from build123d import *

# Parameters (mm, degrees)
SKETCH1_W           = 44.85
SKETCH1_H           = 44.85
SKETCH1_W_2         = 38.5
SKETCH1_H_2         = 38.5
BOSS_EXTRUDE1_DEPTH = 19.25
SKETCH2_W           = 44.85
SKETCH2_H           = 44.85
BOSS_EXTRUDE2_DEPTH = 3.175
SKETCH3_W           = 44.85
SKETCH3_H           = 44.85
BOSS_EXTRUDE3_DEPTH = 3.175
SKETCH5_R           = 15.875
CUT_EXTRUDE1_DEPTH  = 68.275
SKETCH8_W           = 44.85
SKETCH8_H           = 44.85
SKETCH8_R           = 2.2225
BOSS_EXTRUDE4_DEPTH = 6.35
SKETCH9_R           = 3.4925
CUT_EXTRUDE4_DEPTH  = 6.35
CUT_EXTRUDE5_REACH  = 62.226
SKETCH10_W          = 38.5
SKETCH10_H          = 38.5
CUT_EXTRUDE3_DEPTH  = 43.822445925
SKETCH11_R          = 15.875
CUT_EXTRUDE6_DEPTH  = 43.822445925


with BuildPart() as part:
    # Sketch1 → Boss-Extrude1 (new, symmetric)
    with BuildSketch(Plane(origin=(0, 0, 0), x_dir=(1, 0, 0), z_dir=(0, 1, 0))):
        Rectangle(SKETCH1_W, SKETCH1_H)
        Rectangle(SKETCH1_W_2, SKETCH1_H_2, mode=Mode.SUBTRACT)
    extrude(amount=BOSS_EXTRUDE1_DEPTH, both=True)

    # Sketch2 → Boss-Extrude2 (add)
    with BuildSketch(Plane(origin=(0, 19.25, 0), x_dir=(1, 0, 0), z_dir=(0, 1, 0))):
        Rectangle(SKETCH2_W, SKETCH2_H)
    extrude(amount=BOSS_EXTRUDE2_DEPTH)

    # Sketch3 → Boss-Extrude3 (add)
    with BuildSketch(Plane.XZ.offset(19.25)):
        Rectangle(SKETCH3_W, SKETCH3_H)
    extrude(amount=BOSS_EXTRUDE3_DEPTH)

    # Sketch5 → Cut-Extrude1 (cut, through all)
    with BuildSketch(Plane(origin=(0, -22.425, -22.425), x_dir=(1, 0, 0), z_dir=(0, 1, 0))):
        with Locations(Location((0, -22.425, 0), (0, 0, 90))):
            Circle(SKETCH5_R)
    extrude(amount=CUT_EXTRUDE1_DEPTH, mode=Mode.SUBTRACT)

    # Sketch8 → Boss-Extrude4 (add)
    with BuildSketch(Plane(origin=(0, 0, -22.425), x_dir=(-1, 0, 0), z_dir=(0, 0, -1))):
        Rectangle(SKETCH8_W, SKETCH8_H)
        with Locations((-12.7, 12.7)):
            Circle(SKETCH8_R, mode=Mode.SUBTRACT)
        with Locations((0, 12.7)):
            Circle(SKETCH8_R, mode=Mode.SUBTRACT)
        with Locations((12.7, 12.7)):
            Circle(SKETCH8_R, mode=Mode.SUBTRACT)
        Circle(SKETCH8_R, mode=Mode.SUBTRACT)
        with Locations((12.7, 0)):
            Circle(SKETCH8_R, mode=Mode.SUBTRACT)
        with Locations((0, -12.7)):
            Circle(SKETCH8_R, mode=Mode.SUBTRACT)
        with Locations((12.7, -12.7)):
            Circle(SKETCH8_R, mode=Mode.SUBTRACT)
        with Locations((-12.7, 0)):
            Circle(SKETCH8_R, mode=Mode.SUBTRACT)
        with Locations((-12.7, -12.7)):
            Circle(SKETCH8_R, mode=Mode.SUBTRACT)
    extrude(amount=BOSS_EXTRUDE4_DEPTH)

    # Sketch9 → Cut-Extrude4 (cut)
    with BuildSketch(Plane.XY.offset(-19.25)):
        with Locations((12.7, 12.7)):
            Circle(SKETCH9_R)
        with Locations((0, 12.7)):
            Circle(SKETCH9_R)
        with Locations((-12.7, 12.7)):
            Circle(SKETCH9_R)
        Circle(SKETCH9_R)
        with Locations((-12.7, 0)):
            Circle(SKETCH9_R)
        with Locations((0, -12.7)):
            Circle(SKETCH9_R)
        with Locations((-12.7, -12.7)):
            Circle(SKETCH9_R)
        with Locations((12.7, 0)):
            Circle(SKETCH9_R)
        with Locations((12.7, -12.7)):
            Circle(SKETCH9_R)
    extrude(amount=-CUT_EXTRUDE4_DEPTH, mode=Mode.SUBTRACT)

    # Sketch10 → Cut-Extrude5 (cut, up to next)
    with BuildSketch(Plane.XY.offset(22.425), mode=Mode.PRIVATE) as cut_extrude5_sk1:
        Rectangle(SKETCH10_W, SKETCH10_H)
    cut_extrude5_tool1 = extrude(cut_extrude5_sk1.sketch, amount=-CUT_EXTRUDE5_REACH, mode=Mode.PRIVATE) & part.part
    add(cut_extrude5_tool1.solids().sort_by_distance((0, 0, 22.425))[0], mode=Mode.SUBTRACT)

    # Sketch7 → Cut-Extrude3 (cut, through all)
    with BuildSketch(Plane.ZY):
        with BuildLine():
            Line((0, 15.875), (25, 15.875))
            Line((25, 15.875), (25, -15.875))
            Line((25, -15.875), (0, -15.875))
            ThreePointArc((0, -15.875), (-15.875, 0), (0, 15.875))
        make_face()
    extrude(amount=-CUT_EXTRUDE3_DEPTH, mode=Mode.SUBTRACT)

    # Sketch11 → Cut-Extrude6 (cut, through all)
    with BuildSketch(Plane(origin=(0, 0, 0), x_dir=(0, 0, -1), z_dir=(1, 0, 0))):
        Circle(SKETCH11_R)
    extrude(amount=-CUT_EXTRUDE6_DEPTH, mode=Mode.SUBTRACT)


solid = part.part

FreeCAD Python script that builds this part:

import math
import FreeCAD as App
import Part
import Sketcher
from FreeCAD import Vector
Q = App.Units.Quantity

doc = App.newDocument("Part")
body = doc.addObject("PartDesign::Body", "Body")

sketch1 = body.newObject("Sketcher::SketchObject", "Sketch")
sketch1.AttachmentSupport = (doc.getObject("XZ_Plane"), [""])
sketch1.MapMode = "FlatFace"
sketch1.addGeometry([
    Part.LineSegment(Vector(-22.425, -22.425, 0), Vector(-22.425, 22.425, 0)),
    Part.LineSegment(Vector(-22.425, 22.425, 0), Vector(22.425, 22.425, 0)),
    Part.LineSegment(Vector(22.425, 22.425, 0), Vector(22.425, -22.425, 0)),
    Part.LineSegment(Vector(22.425, -22.425, 0), Vector(-22.425, -22.425, 0)),
    Part.LineSegment(Vector(19.25, 19.25, 0), Vector(-19.25, 19.25, 0)),
    Part.LineSegment(Vector(-19.25, 19.25, 0), Vector(-19.25, -19.25, 0)),
    Part.LineSegment(Vector(-19.25, -19.25, 0), Vector(19.25, -19.25, 0)),
    Part.LineSegment(Vector(19.25, -19.25, 0), Vector(19.25, 19.25, 0)),
], False)
sketch1.addConstraint([
    Sketcher.Constraint("Coincident", 0, 2, 1, 1),
    Sketcher.Constraint("Coincident", 1, 2, 2, 1),
    Sketcher.Constraint("Coincident", 2, 2, 3, 1),
    Sketcher.Constraint("Coincident", 3, 2, 0, 1),
    Sketcher.Constraint("Coincident", 4, 2, 5, 1),
    Sketcher.Constraint("Coincident", 5, 2, 6, 1),
    Sketcher.Constraint("Coincident", 6, 2, 7, 1),
    Sketcher.Constraint("Coincident", 7, 2, 4, 1),
    Sketcher.Constraint("Vertical", 0),
    Sketcher.Constraint("Horizontal", 1),
    Sketcher.Constraint("Vertical", 2),
    Sketcher.Constraint("Horizontal", 3),
    Sketcher.Constraint("Horizontal", 4),
    Sketcher.Constraint("Vertical", 5),
    Sketcher.Constraint("Horizontal", 6),
    Sketcher.Constraint("Vertical", 7),
    Sketcher.Constraint("Symmetric", 0, 2, 2, 2, -1, 1),
    Sketcher.Constraint("Symmetric", 4, 2, 6, 2, -1, 1),
    Sketcher.Constraint("Equal", 3, 0),
    Sketcher.Constraint("Equal", 6, 5),
    Sketcher.Constraint("DistanceX", 0, 2, 4, 2, Q("0.125 in")),
    Sketcher.Constraint("DistanceX", 1, 1, 1, 2, Q("44.85 mm")),
])
pad1 = body.newObject("PartDesign::Pad", "Pad")
pad1.Profile = sketch1
pad1.Length = 38.5
pad1.Midplane = True

sketch2 = body.newObject("Sketcher::SketchObject", "Sketch001")
sketch2.AttachmentSupport = (doc.getObject("XZ_Plane"), [""])
sketch2.MapMode = "FlatFace"
sketch2.AttachmentOffset = App.Placement(Vector(0, 0, -19.25), App.Rotation())
sketch2.addGeometry([
    Part.LineSegment(Vector(-22.425, -22.425, 0), Vector(-22.425, 22.425, 0)),
    Part.LineSegment(Vector(-22.425, 22.425, 0), Vector(22.425, 22.425, 0)),
    Part.LineSegment(Vector(22.425, 22.425, 0), Vector(22.425, -22.425, 0)),
    Part.LineSegment(Vector(22.425, -22.425, 0), Vector(-22.425, -22.425, 0)),
], False)
sketch2.addConstraint([
    Sketcher.Constraint("Coincident", 0, 2, 1, 1),
    Sketcher.Constraint("Coincident", 1, 2, 2, 1),
    Sketcher.Constraint("Coincident", 2, 2, 3, 1),
    Sketcher.Constraint("Coincident", 3, 2, 0, 1),
    Sketcher.Constraint("Vertical", 0),
    Sketcher.Constraint("Horizontal", 1),
    Sketcher.Constraint("Vertical", 2),
    Sketcher.Constraint("Horizontal", 3),
    Sketcher.Constraint("Symmetric", 0, 2, 2, 2, -1, 1),
    Sketcher.Constraint("Equal", 3, 0),
    Sketcher.Constraint("DistanceX", 1, 1, 1, 2, Q("44.85 mm")),
])
pad2 = body.newObject("PartDesign::Pad", "Pad001")
pad2.Profile = sketch2
pad2.Length = Q("0.125 in")
pad2.Reversed = True

sketch3 = body.newObject("Sketcher::SketchObject", "Sketch002")
sketch3.AttachmentSupport = (doc.getObject("XZ_Plane"), [""])
sketch3.MapMode = "FlatFace"
sketch3.AttachmentOffset = App.Placement(Vector(0, 0, 19.25), App.Rotation())
sketch3.addGeometry([
    Part.LineSegment(Vector(-22.425, 22.425, 0), Vector(-22.425, -22.425, 0)),
    Part.LineSegment(Vector(-22.425, -22.425, 0), Vector(22.425, -22.425, 0)),
    Part.LineSegment(Vector(22.425, -22.425, 0), Vector(22.425, 22.425, 0)),
    Part.LineSegment(Vector(22.425, 22.425, 0), Vector(-22.425, 22.425, 0)),
], False)
sketch3.addConstraint([
    Sketcher.Constraint("Coincident", 0, 2, 1, 1),
    Sketcher.Constraint("Coincident", 1, 2, 2, 1),
    Sketcher.Constraint("Coincident", 2, 2, 3, 1),
    Sketcher.Constraint("Coincident", 3, 2, 0, 1),
    Sketcher.Constraint("Vertical", 0),
    Sketcher.Constraint("Horizontal", 1),
    Sketcher.Constraint("Vertical", 2),
    Sketcher.Constraint("Horizontal", 3),
    Sketcher.Constraint("Symmetric", 0, 2, 2, 2, -1, 1),
    Sketcher.Constraint("Equal", 3, 0),
    Sketcher.Constraint("DistanceX", 1, 1, 1, 2, Q("44.85 mm")),
])
pad3 = body.newObject("PartDesign::Pad", "Pad002")
pad3.Profile = sketch3
pad3.Length = Q("0.125 in")

sketch4 = body.newObject("Sketcher::SketchObject", "Sketch003")
sketch4.AttachmentSupport = (doc.getObject("XZ_Plane"), [""])
sketch4.MapMode = "FlatFace"
sketch4.AttachmentOffset = App.Placement(Vector(0, 0, 22.425), App.Rotation())
sketch4.addGeometry(Part.Circle(Vector(0, 0, 0), Vector(0, 0, 1), 15.875), False)
sketch4.addConstraint([
    Sketcher.Constraint("Coincident", 0, 3, -1, 1),
    Sketcher.Constraint("Diameter", 0, Q("1.25 in")),
])
pocket1 = body.newObject("PartDesign::Pocket", "Pocket")
pocket1.Profile = sketch4
pocket1.Type = "ThroughAll"

sketch5 = body.newObject("Sketcher::SketchObject", "Sketch004")
sketch5.AttachmentSupport = (doc.getObject("XY_Plane"), [""])
sketch5.MapMode = "FlatFace"
sketch5.AttachmentOffset = App.Placement(Vector(0, 0, -22.425), App.Rotation())
sketch5.addGeometry([
    Part.LineSegment(Vector(22.425, 22.425, 0), Vector(22.425, -22.425, 0)),
    Part.LineSegment(Vector(22.425, -22.425, 0), Vector(-22.425, -22.425, 0)),
    Part.LineSegment(Vector(-22.425, -22.425, 0), Vector(-22.425, 22.425, 0)),
    Part.LineSegment(Vector(-22.425, 22.425, 0), Vector(22.425, 22.425, 0)),
    Part.Circle(Vector(12.7, -12.7, 0), Vector(0, 0, 1), 2.2225),
    Part.Circle(Vector(0, -12.7, 0), Vector(0, 0, 1), 2.2225),
    Part.Circle(Vector(-12.7, -12.7, 0), Vector(0, 0, 1), 2.2225),
    Part.Circle(Vector(12.7, 0, 0), Vector(0, 0, 1), 2.2225),
    Part.Circle(Vector(12.7, 12.7, 0), Vector(0, 0, 1), 2.2225),
    Part.Circle(Vector(0, 0, 0), Vector(0, 0, 1), 2.2225),
    Part.Circle(Vector(-12.7, 0, 0), Vector(0, 0, 1), 2.2225),
    Part.Circle(Vector(0, 12.7, 0), Vector(0, 0, 1), 2.2225),
    Part.Circle(Vector(-12.7, 12.7, 0), Vector(0, 0, 1), 2.2225),
], False)
sketch5.addConstraint([
    Sketcher.Constraint("Coincident", 0, 2, 1, 1),
    Sketcher.Constraint("Coincident", 1, 2, 2, 1),
    Sketcher.Constraint("Coincident", 2, 2, 3, 1),
    Sketcher.Constraint("Coincident", 3, 2, 0, 1),
    Sketcher.Constraint("Vertical", 0),
    Sketcher.Constraint("Horizontal", 1),
    Sketcher.Constraint("Vertical", 2),
    Sketcher.Constraint("Horizontal", 3),
    Sketcher.Constraint("Coincident", 9, 3, -1, 1),
    Sketcher.Constraint("Equal", 4, 5),
    Sketcher.Constraint("Equal", 5, 6),
    Sketcher.Constraint("Equal", 6, 7),
    Sketcher.Constraint("Equal", 7, 8),
    Sketcher.Constraint("Equal", 8, 9),
    Sketcher.Constraint("Equal", 9, 10),
    Sketcher.Constraint("Equal", 10, 11),
    Sketcher.Constraint("Equal", 11, 12),
    Sketcher.Constraint("Symmetric", 6, 3, 8, 3, -1, 1),
    Sketcher.Constraint("Symmetric", 7, 3, 10, 3, -1, 1),
    Sketcher.Constraint("Symmetric", 5, 3, 11, 3, -1, 1),
    Sketcher.Constraint("Symmetric", 4, 3, 12, 3, -1, 1),
    Sketcher.Constraint("Symmetric", 0, 2, 2, 2, -1, 1),
    Sketcher.Constraint("Symmetric", 4, 3, 6, 3, -2),
    Sketcher.Constraint("PointOnObject", 5, 3, -2),
    Sketcher.Constraint("PointOnObject", 7, 3, -1),
    Sketcher.Constraint("Horizontal", 4, 3, 5, 3),
    Sketcher.Constraint("Vertical", 4, 3, 7, 3),
    Sketcher.Constraint("Equal", 3, 0),
    Sketcher.Constraint("Diameter", 4, Q("0.175 in")),
    Sketcher.Constraint("DistanceX", 6, 3, 4, 3, Q("1 in")),
    Sketcher.Constraint("DistanceY", 4, 3, 8, 3, Q("1 in")),
    Sketcher.Constraint("DistanceX", 1, 2, 1, 1, Q("44.85 mm")),
])
pad4 = body.newObject("PartDesign::Pad", "Pad003")
pad4.Profile = sketch5
pad4.Length = Q("0.25 in")
pad4.Reversed = True

sketch6 = body.newObject("Sketcher::SketchObject", "Sketch005")
sketch6.AttachmentSupport = (doc.getObject("XY_Plane"), [""])
sketch6.MapMode = "FlatFace"
sketch6.AttachmentOffset = App.Placement(Vector(0, 0, -19.25), App.Rotation())
sketch6.addGeometry([
    Part.Circle(Vector(12.7, 12.7, 0), Vector(0, 0, 1), 3.4925),
    Part.Circle(Vector(0, 12.7, 0), Vector(0, 0, 1), 3.4925),
    Part.Circle(Vector(-12.7, 12.7, 0), Vector(0, 0, 1), 3.4925),
    Part.Circle(Vector(0, 0, 0), Vector(0, 0, 1), 3.4925),
    Part.Circle(Vector(-12.7, 0, 0), Vector(0, 0, 1), 3.4925),
    Part.Circle(Vector(0, -12.7, 0), Vector(0, 0, 1), 3.4925),
    Part.Circle(Vector(-12.7, -12.7, 0), Vector(0, 0, 1), 3.4925),
    Part.Circle(Vector(12.7, 0, 0), Vector(0, 0, 1), 3.4925),
    Part.Circle(Vector(12.7, -12.7, 0), Vector(0, 0, 1), 3.4925),
], False)
sketch6.addConstraint([
    Sketcher.Constraint("Coincident", 3, 3, -1, 1),
    Sketcher.Constraint("Equal", 0, 1),
    Sketcher.Constraint("Equal", 1, 2),
    Sketcher.Constraint("Equal", 2, 3),
    Sketcher.Constraint("Equal", 3, 4),
    Sketcher.Constraint("Equal", 4, 5),
    Sketcher.Constraint("Equal", 5, 6),
    Sketcher.Constraint("Equal", 6, 7),
    Sketcher.Constraint("Equal", 7, 8),
    Sketcher.Constraint("Symmetric", 1, 3, 5, 3, -1, 1),
    Sketcher.Constraint("Symmetric", 0, 3, 6, 3, -1, 1),
    Sketcher.Constraint("Symmetric", 4, 3, 7, 3, -1, 1),
    Sketcher.Constraint("Symmetric", 2, 3, 8, 3, -1, 1),
    Sketcher.Constraint("Symmetric", 0, 3, 2, 3, -2),
    Sketcher.Constraint("PointOnObject", 1, 3, -2),
    Sketcher.Constraint("PointOnObject", 4, 3, -1),
    Sketcher.Constraint("Horizontal", 0, 3, 1, 3),
    Sketcher.Constraint("Vertical", 2, 3, 4, 3),
    Sketcher.Constraint("Diameter", 0, Q("0.275 in")),
    Sketcher.Constraint("DistanceX", 2, 3, 0, 3, Q("1 in")),
    Sketcher.Constraint("DistanceY", 5, 3, 1, 3, Q("1 in")),
])
pocket2 = body.newObject("PartDesign::Pocket", "Pocket001")
pocket2.Profile = sketch6
pocket2.Length = Q("0.25 in")

sketch7 = body.newObject("Sketcher::SketchObject", "Sketch006")
sketch7.AttachmentSupport = (doc.getObject("XY_Plane"), [""])
sketch7.MapMode = "FlatFace"
sketch7.AttachmentOffset = App.Placement(Vector(0, 0, 22.425), App.Rotation())
sketch7.addGeometry([
    Part.LineSegment(Vector(-19.25, 19.25, 0), Vector(-19.25, -19.25, 0)),
    Part.LineSegment(Vector(-19.25, -19.25, 0), Vector(19.25, -19.25, 0)),
    Part.LineSegment(Vector(19.25, -19.25, 0), Vector(19.25, 19.25, 0)),
    Part.LineSegment(Vector(19.25, 19.25, 0), Vector(-19.25, 19.25, 0)),
], False)
sketch7.addConstraint([
    Sketcher.Constraint("Coincident", 0, 2, 1, 1),
    Sketcher.Constraint("Coincident", 1, 2, 2, 1),
    Sketcher.Constraint("Coincident", 2, 2, 3, 1),
    Sketcher.Constraint("Coincident", 3, 2, 0, 1),
    Sketcher.Constraint("Vertical", 0),
    Sketcher.Constraint("Horizontal", 1),
    Sketcher.Constraint("Vertical", 2),
    Sketcher.Constraint("Horizontal", 3),
    Sketcher.Constraint("Symmetric", 0, 2, 2, 2, -1, 1),
    Sketcher.Constraint("Equal", 3, 0),
    Sketcher.Constraint("DistanceX", 1, 1, 1, 2, Q("38.5 mm")),
])
pocket3 = body.newObject("PartDesign::Pocket", "Pocket002")
pocket3.Profile = sketch7
pocket3.Type = "UpToFirst"

sketch8 = body.newObject("Sketcher::SketchObject", "Sketch007")
sketch8.AttachmentSupport = (doc.getObject("YZ_Plane"), [""])
sketch8.MapMode = "FlatFace"
sketch8.addGeometry([
    Part.LineSegment(Vector(15.875, 25, 0), Vector(15.875, 0, 0)),
    Part.ArcOfCircle(Part.Circle(Vector(0, 0, 0), Vector(0, 0, 1), 15.875), math.radians(180), math.radians(360)),
    Part.LineSegment(Vector(-15.875, 0, 0), Vector(-15.875, 25, 0)),
    Part.LineSegment(Vector(-15.875, 25, 0), Vector(15.875, 25, 0)),
], False)
sketch8.addConstraint([
    Sketcher.Constraint("Tangent", 0, 2, 1, 2),
    Sketcher.Constraint("Tangent", 1, 1, 2, 1),
    Sketcher.Constraint("Coincident", 2, 2, 3, 1),
    Sketcher.Constraint("Coincident", 3, 2, 0, 1),
    Sketcher.Constraint("Vertical", 0),
    Sketcher.Constraint("Vertical", 2),
    Sketcher.Constraint("Horizontal", 3),
    Sketcher.Constraint("Coincident", 1, 3, -1, 1),
    Sketcher.Constraint("Radius", 1, Q("0.625 in")),
    Sketcher.Constraint("DistanceY", 0, 2, 0, 1, Q("25 mm")),
])
pocket4 = body.newObject("PartDesign::Pocket", "Pocket003")
pocket4.Profile = sketch8
pocket4.Type = "ThroughAll"
pocket4.Reversed = True

sketch9 = body.newObject("Sketcher::SketchObject", "Sketch008")
sketch9.AttachmentSupport = (doc.getObject("YZ_Plane"), [""])
sketch9.MapMode = "FlatFace"
sketch9.addGeometry(Part.Circle(Vector(0, 0, 0), Vector(0, 0, 1), 15.875), False)
sketch9.addConstraint([
    Sketcher.Constraint("Coincident", 0, 3, -1, 1),
    Sketcher.Constraint("Diameter", 0, Q("1.25 in")),
])
pocket5 = body.newObject("PartDesign::Pocket", "Pocket004")
pocket5.Profile = sketch9
pocket5.Type = "ThroughAll"

doc.recompute()
